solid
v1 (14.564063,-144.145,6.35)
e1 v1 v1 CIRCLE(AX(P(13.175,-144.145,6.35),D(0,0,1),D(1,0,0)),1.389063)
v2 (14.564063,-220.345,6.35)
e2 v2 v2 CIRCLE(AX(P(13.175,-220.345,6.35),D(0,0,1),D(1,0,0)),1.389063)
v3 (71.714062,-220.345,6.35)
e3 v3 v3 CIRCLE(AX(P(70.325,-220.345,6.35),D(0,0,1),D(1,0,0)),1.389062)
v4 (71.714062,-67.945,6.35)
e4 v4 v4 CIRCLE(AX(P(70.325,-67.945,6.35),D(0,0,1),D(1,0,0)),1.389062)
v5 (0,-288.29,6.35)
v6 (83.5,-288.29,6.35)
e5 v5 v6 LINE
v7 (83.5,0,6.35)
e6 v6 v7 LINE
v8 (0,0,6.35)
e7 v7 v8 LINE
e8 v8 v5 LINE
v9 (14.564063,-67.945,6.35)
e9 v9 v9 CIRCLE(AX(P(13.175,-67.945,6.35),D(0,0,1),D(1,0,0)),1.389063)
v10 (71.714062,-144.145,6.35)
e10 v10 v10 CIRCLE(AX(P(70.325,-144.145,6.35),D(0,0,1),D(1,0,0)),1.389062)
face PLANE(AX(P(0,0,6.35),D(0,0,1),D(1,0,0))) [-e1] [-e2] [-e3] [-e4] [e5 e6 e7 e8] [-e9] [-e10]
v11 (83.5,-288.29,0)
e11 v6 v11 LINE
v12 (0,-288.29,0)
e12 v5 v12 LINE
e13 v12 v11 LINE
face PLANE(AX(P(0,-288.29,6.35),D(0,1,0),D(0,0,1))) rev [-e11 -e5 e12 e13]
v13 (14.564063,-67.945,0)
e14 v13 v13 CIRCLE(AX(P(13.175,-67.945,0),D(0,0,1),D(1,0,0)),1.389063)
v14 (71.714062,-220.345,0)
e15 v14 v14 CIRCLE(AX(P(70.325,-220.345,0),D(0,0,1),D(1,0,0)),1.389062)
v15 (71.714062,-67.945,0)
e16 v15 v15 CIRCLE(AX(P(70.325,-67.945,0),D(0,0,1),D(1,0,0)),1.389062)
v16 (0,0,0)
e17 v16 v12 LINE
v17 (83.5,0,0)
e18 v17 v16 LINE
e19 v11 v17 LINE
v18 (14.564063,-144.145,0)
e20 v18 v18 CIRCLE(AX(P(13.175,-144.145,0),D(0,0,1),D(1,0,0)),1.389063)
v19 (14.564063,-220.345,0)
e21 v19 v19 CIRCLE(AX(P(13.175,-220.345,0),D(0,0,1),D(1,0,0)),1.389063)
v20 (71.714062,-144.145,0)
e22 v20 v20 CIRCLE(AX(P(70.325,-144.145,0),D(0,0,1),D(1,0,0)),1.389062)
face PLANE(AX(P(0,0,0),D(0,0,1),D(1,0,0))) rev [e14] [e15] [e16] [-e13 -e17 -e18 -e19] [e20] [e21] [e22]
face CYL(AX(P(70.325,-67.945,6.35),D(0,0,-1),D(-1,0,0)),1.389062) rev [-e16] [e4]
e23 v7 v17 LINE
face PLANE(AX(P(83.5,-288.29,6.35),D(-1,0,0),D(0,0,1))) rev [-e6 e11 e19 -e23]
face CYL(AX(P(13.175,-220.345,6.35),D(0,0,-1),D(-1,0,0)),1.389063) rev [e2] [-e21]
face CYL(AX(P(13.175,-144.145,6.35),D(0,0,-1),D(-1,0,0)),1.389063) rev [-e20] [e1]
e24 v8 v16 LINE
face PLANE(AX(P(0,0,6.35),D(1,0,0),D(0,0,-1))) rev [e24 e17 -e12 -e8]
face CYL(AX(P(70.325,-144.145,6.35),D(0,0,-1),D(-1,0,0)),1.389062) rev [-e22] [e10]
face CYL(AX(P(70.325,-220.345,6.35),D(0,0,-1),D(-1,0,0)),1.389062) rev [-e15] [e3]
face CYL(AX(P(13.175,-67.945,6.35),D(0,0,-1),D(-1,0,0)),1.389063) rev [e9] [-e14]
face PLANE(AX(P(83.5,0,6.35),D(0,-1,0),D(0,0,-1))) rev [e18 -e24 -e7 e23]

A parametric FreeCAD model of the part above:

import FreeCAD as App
import Part
import Sketcher
from FreeCAD import Vector
Q = App.Units.Quantity

doc = App.newDocument("Part")
body = doc.addObject("PartDesign::Body", "Body")

# Sketch on XY plane
sketch1 = body.newObject("Sketcher::SketchObject", "Sketch")
sketch1.AttachmentSupport = (doc.getObject("XY_Plane"), [""])
sketch1.MapMode = "FlatFace"
sketch1.addGeometry(Part.LineSegment(Vector(0, 0, 0), Vector(0, -288.3, 0)), False)
sketch1.addGeometry(Part.LineSegment(Vector(0, -288.3, 0), Vector(83.5, -288.3, 0)), False)
sketch1.addGeometry(Part.LineSegment(Vector(83.5, -288.3, 0), Vector(83.5, 0, 0)), False)
sketch1.addGeometry(Part.LineSegment(Vector(83.5, 0, 0), Vector(0, 0, 0)), False)
sketch1.addGeometry(Part.Circle(Vector(13.2, -220.3, 0), Vector(0, 0, 1), 1.4), False)
sketch1.addGeometry(Part.Circle(Vector(13.2, -144.1, 0), Vector(0, 0, 1), 1.4), False)
sketch1.addGeometry(Part.Circle(Vector(70.3, -220.3, 0), Vector(0, 0, 1), 1.4), False)
sketch1.addGeometry(Part.Circle(Vector(70.3, -144.1, 0), Vector(0, 0, 1), 1.4), False)
sketch1.addGeometry(Part.Circle(Vector(13.2, -67.9, 0), Vector(0, 0, 1), 1.4), False)
sketch1.addGeometry(Part.Circle(Vector(70.3, -67.9, 0), Vector(0, 0, 1), 1.4), False)
sketch1.addConstraint(Sketcher.Constraint("Coincident", 0, 2, 1, 1))
sketch1.addConstraint(Sketcher.Constraint("Coincident", 1, 2, 2, 1))
sketch1.addConstraint(Sketcher.Constraint("Coincident", 2, 2, 3, 1))
sketch1.addConstraint(Sketcher.Constraint("Coincident", 3, 2, 0, 1))
sketch1.addConstraint(Sketcher.Constraint("Vertical", 0))
sketch1.addConstraint(Sketcher.Constraint("Horizontal", 1))
sketch1.addConstraint(Sketcher.Constraint("Vertical", 2))
sketch1.addConstraint(Sketcher.Constraint("Horizontal", 3))
sketch1.addConstraint(Sketcher.Constraint("Coincident", 3, 2, -1, 1))
sketch1.addConstraint(Sketcher.Constraint("Equal", 4, 5))
sketch1.addConstraint(Sketcher.Constraint("Equal", 5, 6))
sketch1.addConstraint(Sketcher.Constraint("Equal", 6, 7))
sketch1.addConstraint(Sketcher.Constraint("Equal", 7, 8))
sketch1.addConstraint(Sketcher.Constraint("Equal", 8, 9))
sketch1.addConstraint(Sketcher.Constraint("Horizontal", 4, 3, 6, 3))
sketch1.addConstraint(Sketcher.Constraint("Horizontal", 5, 3, 7, 3))
sketch1.addConstraint(Sketcher.Constraint("Horizontal", 8, 3, 9, 3))
sketch1.addConstraint(Sketcher.Constraint("Vertical", 4, 3, 5, 3))
sketch1.addConstraint(Sketcher.Constraint("Vertical", 6, 3, 7, 3))
sketch1.addConstraint(Sketcher.Constraint("Vertical", 5, 3, 8, 3))
sketch1.addConstraint(Sketcher.Constraint("Vertical", 7, 3, 9, 3))
sketch1.addConstraint(Sketcher.Constraint("Diameter", 4, Q("0.109375 in")))
sketch1.addConstraint(Sketcher.Constraint("DistanceY", 4, 3, 5, 3, Q("3 in")))
sketch1.addConstraint(Sketcher.Constraint("DistanceY", 5, 3, 8, 3, Q("3 in")))
sketch1.addConstraint(Sketcher.Constraint("DistanceY", 0, 2, 0, 1, Q("11.35 in")))
sketch1.addConstraint(Sketcher.Constraint("DistanceX", 4, 3, 6, 3, Q("2.25 in")))
sketch1.addConstraint(Sketcher.Constraint("DistanceY", 4, 3, -1, 1, Q("8.675 in")))
sketch1.addConstraint(Sketcher.Constraint("DistanceX", 1, 1, 1, 2, Q("83.5 mm")))
sketch1.addConstraint(Sketcher.Constraint("DistanceX", -1, 1, 4, 3, Q("13.175 mm")))
pad1 = body.newObject("PartDesign::Pad", "Pad")
pad1.Profile = sketch1
pad1.Length = Q("0.25 in")

doc.recompute()
